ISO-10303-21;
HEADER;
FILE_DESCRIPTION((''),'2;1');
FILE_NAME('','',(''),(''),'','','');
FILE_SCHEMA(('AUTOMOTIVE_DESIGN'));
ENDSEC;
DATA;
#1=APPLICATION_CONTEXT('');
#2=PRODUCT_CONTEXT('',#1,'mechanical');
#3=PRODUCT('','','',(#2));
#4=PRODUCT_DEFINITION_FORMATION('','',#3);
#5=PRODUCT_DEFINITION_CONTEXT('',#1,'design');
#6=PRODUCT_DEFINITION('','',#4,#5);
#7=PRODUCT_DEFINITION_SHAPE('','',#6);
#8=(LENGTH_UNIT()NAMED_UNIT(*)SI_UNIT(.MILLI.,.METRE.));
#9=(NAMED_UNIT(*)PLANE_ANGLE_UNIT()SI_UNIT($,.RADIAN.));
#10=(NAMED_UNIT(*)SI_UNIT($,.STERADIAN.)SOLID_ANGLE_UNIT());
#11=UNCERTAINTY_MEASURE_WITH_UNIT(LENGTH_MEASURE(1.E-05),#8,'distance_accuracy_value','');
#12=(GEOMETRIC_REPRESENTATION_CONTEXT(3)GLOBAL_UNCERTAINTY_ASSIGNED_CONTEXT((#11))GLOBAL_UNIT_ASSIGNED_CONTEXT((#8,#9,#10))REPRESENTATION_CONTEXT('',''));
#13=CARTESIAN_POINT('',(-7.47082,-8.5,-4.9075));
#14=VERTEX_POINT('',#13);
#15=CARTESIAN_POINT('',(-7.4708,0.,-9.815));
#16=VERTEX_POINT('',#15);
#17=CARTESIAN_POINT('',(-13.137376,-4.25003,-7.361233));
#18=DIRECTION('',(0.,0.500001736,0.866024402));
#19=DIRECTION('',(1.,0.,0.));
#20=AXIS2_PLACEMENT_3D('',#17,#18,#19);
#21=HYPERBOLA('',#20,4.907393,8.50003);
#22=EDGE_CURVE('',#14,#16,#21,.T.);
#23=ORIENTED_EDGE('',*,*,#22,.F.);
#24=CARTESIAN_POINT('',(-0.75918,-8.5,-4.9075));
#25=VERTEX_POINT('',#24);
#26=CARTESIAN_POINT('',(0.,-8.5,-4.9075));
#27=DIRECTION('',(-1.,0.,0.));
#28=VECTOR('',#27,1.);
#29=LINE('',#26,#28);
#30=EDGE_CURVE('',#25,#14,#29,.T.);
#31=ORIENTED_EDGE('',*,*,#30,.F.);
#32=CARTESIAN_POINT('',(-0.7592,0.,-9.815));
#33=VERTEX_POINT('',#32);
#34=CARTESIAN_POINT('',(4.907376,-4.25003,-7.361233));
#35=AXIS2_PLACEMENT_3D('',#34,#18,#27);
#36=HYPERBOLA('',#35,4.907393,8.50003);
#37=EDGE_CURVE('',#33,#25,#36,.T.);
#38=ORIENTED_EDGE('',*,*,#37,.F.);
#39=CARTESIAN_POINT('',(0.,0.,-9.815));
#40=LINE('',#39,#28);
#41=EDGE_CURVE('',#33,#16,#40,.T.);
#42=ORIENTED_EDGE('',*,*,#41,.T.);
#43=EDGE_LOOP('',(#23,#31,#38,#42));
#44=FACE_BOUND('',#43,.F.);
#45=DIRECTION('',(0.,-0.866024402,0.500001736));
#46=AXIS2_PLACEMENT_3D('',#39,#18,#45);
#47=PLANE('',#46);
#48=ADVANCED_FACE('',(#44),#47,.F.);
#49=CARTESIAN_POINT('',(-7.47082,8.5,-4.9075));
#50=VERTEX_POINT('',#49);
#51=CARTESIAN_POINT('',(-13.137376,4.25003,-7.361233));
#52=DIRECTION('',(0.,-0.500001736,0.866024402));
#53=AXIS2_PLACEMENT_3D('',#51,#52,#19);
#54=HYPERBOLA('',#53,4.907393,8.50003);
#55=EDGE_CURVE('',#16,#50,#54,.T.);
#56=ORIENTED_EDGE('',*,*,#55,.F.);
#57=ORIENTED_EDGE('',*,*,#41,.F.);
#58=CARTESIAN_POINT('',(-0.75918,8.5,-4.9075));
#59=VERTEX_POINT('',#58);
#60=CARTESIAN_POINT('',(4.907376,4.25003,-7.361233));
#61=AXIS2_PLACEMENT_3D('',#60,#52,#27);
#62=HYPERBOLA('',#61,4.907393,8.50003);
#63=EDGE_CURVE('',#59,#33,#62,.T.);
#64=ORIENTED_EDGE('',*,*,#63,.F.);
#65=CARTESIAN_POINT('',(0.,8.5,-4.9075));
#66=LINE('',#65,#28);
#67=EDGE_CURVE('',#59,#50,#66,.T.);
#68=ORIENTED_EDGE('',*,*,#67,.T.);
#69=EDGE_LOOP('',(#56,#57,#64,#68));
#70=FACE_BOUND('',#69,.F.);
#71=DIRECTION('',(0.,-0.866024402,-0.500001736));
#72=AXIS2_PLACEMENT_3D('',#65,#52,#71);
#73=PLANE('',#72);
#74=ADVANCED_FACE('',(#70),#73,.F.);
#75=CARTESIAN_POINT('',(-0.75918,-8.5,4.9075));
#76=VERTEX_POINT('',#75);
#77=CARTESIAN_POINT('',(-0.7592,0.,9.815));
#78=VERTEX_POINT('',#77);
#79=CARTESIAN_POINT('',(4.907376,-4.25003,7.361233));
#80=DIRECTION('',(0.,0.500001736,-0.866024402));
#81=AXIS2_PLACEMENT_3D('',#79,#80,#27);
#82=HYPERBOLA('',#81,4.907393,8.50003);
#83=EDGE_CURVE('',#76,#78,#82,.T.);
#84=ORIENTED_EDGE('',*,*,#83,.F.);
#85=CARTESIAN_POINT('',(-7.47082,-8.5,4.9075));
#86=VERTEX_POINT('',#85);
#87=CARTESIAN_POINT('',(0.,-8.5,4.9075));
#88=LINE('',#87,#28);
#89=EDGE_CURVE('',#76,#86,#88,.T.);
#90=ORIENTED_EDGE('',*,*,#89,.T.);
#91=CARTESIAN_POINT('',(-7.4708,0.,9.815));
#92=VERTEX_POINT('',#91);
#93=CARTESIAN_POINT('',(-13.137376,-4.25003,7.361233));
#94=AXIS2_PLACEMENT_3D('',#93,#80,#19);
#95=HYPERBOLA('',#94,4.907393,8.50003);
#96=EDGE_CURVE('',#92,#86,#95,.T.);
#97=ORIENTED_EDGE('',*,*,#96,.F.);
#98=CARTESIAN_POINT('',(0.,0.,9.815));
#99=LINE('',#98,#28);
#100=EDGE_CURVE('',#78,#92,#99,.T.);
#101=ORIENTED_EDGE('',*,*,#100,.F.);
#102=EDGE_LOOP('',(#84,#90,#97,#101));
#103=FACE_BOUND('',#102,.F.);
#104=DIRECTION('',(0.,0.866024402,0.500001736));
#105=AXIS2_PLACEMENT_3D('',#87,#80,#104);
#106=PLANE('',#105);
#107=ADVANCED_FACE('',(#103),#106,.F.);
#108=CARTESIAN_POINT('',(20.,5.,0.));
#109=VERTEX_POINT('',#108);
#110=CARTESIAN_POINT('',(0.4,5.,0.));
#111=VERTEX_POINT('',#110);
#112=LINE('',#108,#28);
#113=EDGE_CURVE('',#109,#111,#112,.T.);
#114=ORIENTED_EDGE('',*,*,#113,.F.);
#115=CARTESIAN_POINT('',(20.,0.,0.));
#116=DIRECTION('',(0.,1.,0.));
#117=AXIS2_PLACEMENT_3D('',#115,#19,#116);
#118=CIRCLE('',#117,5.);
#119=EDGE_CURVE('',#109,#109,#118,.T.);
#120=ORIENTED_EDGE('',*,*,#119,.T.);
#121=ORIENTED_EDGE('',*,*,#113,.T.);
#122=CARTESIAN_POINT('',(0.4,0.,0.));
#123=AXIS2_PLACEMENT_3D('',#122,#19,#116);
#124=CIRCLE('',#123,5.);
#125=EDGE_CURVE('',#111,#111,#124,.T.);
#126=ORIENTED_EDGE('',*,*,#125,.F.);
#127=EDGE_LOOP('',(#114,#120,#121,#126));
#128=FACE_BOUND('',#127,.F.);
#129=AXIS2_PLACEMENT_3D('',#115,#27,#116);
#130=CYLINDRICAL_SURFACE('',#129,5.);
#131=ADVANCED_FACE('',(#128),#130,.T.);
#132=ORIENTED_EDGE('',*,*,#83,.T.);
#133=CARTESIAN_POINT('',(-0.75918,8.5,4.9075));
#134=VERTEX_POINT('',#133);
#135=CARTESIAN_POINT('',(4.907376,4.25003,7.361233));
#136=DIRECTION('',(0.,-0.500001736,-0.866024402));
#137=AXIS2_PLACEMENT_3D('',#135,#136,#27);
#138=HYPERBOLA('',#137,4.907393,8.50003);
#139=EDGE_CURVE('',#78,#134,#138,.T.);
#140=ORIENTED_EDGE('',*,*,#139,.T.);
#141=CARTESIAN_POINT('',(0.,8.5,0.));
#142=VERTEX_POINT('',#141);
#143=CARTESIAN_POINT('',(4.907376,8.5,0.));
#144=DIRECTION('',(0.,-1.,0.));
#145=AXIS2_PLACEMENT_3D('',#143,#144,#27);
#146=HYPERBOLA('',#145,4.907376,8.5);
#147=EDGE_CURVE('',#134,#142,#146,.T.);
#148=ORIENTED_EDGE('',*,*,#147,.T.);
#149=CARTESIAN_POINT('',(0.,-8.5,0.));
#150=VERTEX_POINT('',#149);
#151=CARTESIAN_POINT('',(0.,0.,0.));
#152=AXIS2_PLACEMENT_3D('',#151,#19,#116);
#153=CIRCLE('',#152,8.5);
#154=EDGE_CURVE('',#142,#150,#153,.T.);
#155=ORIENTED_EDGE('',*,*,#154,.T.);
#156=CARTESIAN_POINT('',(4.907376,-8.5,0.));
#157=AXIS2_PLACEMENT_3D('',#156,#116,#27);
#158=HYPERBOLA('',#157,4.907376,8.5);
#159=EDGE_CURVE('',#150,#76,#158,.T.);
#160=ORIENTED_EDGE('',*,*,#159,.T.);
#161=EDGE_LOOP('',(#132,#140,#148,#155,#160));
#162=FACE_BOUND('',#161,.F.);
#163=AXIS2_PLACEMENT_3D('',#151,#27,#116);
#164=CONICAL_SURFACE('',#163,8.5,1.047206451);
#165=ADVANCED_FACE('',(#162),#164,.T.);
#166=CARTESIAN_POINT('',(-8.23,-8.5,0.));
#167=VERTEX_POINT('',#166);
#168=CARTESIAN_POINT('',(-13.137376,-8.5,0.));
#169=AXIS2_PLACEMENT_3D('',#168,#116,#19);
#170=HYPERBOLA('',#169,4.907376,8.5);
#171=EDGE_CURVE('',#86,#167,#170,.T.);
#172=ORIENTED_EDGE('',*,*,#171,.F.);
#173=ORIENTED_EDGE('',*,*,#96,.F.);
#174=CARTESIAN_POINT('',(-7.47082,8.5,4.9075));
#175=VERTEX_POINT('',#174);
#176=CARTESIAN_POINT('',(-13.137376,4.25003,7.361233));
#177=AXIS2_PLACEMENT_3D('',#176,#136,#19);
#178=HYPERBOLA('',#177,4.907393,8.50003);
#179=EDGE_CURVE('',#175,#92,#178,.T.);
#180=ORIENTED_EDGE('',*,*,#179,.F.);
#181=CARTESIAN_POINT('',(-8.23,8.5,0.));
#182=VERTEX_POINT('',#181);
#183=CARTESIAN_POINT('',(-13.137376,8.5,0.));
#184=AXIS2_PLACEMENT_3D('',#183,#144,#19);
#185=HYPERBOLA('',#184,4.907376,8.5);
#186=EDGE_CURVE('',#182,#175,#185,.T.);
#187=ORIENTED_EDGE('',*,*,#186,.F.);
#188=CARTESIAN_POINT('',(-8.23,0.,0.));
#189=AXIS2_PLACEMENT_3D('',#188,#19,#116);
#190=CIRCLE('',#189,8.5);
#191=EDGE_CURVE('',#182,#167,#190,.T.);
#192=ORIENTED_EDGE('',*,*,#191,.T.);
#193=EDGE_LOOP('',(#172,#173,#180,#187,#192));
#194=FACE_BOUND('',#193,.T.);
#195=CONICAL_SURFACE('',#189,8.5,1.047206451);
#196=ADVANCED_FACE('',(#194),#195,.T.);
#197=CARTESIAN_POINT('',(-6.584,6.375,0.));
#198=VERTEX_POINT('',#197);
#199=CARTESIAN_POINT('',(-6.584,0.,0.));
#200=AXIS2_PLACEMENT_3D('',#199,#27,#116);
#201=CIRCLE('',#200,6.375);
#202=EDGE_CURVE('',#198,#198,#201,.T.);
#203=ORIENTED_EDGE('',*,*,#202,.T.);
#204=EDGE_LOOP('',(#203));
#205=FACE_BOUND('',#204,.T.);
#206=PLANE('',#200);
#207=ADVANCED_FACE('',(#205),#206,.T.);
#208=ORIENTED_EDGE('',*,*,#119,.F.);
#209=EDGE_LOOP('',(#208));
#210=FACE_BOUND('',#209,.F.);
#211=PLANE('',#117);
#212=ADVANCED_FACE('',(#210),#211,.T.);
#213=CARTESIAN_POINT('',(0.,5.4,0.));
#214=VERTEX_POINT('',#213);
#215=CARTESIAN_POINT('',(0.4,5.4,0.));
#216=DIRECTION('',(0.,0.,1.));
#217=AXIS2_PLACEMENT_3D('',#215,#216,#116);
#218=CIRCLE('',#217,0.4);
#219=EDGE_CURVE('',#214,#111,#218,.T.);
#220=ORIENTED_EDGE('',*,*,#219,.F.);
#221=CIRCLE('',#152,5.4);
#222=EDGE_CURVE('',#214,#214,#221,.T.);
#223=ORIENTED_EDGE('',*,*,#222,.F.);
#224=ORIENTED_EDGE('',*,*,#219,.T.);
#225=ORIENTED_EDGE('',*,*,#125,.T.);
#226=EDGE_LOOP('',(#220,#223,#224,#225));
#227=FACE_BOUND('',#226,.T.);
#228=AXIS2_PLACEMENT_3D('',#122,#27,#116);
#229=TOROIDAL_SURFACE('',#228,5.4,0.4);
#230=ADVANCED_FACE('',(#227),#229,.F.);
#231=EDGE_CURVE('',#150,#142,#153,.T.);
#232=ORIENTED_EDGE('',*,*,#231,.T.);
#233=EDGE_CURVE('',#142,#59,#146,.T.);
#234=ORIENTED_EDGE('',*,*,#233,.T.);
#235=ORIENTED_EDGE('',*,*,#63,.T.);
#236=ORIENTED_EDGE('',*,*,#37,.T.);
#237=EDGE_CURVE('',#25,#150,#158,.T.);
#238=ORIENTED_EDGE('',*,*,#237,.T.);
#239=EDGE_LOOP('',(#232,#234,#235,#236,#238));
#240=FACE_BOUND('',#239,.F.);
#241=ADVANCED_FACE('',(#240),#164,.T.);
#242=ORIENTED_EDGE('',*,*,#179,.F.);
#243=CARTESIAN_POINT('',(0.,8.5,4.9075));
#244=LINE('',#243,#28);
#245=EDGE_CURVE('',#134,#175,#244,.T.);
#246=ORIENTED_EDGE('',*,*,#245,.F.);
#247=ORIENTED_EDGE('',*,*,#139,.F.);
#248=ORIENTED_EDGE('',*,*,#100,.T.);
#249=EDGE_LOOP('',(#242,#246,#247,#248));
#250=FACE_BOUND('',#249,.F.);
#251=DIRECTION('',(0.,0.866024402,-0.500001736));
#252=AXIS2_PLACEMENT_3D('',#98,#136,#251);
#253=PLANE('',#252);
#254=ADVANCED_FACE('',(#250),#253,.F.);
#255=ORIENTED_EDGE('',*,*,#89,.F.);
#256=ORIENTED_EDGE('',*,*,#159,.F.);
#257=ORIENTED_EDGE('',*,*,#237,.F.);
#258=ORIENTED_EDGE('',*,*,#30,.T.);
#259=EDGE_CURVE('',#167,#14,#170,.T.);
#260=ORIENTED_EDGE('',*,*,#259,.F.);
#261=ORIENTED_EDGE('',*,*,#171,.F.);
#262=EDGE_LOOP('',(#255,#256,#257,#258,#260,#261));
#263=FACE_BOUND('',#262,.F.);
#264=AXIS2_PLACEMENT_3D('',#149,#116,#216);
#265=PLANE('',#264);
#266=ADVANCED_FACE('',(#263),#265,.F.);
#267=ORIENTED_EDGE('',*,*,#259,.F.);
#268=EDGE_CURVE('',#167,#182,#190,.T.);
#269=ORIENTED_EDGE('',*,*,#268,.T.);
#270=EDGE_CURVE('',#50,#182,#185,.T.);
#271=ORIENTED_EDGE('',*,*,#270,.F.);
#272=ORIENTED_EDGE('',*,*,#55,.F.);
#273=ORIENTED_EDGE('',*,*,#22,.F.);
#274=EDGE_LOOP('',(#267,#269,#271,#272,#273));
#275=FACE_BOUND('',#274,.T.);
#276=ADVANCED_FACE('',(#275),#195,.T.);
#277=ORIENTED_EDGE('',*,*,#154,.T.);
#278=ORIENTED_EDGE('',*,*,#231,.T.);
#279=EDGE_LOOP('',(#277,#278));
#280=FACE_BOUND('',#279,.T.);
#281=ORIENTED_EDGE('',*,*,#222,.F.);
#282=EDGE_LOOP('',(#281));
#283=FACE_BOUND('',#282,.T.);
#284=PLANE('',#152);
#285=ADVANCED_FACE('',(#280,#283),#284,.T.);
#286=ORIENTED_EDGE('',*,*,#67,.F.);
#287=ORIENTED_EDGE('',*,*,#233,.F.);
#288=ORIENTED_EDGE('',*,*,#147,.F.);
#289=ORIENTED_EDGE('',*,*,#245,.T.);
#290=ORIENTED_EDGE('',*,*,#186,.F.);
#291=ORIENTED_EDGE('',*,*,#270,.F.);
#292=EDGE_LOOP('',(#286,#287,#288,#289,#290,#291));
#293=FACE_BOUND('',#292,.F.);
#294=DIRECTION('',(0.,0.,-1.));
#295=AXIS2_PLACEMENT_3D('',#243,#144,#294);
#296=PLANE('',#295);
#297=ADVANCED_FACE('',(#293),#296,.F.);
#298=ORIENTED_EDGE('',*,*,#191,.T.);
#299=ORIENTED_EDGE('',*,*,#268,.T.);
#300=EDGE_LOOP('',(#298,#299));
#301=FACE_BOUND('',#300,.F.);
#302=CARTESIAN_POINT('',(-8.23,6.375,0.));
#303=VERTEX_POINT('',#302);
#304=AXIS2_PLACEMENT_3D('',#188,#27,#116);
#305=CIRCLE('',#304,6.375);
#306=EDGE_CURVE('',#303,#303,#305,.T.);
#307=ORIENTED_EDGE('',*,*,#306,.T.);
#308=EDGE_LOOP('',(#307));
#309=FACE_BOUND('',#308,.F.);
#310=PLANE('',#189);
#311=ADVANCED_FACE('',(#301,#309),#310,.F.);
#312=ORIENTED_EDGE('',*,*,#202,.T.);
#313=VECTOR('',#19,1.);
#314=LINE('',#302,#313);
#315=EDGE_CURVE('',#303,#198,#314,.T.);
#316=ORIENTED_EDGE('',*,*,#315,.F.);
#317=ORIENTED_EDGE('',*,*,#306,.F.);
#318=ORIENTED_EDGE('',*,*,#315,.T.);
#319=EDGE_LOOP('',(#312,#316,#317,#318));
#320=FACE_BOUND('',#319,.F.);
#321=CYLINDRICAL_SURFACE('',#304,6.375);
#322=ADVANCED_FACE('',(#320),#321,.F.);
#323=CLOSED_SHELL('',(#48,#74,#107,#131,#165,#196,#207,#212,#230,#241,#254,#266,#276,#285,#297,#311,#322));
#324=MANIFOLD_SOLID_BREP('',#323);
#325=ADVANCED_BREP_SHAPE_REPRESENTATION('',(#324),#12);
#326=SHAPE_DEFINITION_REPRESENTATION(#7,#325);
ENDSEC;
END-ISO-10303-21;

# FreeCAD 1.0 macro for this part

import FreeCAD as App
import Part
import Sketcher
from FreeCAD import Vector
Q = App.Units.Quantity


def edges_at(feature, points):
    """Names of the edges that pass closest to the given points."""
    edges = feature.Shape.Edges
    near = lambda p: min(range(len(edges)), key=lambda i: edges[i].distToShape(Part.Vertex(*p))[0])
    return sorted({f"Edge{near(p) + 1}" for p in points})

doc = App.newDocument("Part")
params = doc.addObject("Spreadsheet::Sheet", "Params")
for row, (alias, value) in enumerate([
    ("sketch1_width", "20 mm"),
    ("sketch1_height", "5 mm"),
    ("revolution_angle", "360 deg"),
    ("pad1_length", "8.23 mm"),
    ("sketch3_diameter", "12.75 mm"),
    ("pocket1_length", "1.646 mm"),
    ("groove_angle", "360 deg"),
    ("fillet_radius", "0.4 mm"),
], start=1):
    params.set(f"A{row}", alias)
    params.set(f"B{row}", "=" + value)
    params.setAlias(f"B{row}", alias)

body = doc.addObject("PartDesign::Body", "Body")

# Sketch on XY plane
sketch1 = body.newObject("Sketcher::SketchObject", "Sketch")
sketch1.AttachmentSupport = (doc.getObject("XY_Plane"), [""])
sketch1.MapMode = "FlatFace"
sketch1.addGeometry([
    Part.LineSegment(Vector(20, 5, 0), Vector(0, 5, 0)),
    Part.LineSegment(Vector(0, 5, 0), Vector(0, 0, 0)),
    Part.LineSegment(Vector(0, 0, 0), Vector(20, 0, 0)),
    Part.LineSegment(Vector(20, 0, 0), Vector(20, 5, 0)),
], False)
sketch1.addConstraint([
    Sketcher.Constraint("Coincident", 0, 2, 1, 1),
    Sketcher.Constraint("Coincident", 1, 2, 2, 1),
    Sketcher.Constraint("Coincident", 2, 2, 3, 1),
    Sketcher.Constraint("Coincident", 3, 2, 0, 1),
    Sketcher.Constraint("Horizontal", 0),
    Sketcher.Constraint("Vertical", 1),
    Sketcher.Constraint("Horizontal", 2),
    Sketcher.Constraint("Vertical", 3),
    Sketcher.Constraint("Coincident", 1, 2, -1, 1),
    Sketcher.Constraint("DistanceX", 0, 2, 0, 1, Q("20 mm")),
    Sketcher.Constraint("DistanceY", 1, 2, 1, 1, Q("5 mm")),
])
sketch1.setExpression("Constraints[9]", "Params.sketch1_width")
sketch1.setExpression("Constraints[10]", "Params.sketch1_height")
revolution = body.newObject("PartDesign::Revolution", "Revolution")
revolution.Profile = sketch1
revolution.ReferenceAxis = (sketch1, ["H_Axis"])
revolution.setExpression("Angle", "Params.revolution_angle")

# Sketch on YZ plane
sketch2 = body.newObject("Sketcher::SketchObject", "Sketch001")
sketch2.AttachmentSupport = (doc.getObject("YZ_Plane"), [""])
sketch2.MapMode = "FlatFace"
sketch2.addGeometry([
    Part.LineSegment(Vector(-8, 5, 0), Vector(-8, -5, 0)),  # 0
    Part.LineSegment(Vector(-8, -5, 0), Vector(0, -10, 0)),  # 1
    Part.LineSegment(Vector(0, -10, 0), Vector(8, -5, 0)),  # 2
    Part.LineSegment(Vector(8, -5, 0), Vector(8, 5, 0)),  # 3
    Part.LineSegment(Vector(8, 5, 0), Vector(0, 10, 0)),  # 4
    Part.LineSegment(Vector(0, 10, 0), Vector(-8, 5, 0)),  # 5
], False)
sketch2.addConstraint([
    Sketcher.Constraint("Coincident", 0, 2, 1, 1),
    Sketcher.Constraint("Coincident", 1, 2, 2, 1),
    Sketcher.Constraint("Coincident", 2, 2, 3, 1),
    Sketcher.Constraint("Coincident", 3, 2, 4, 1),
    Sketcher.Constraint("Coincident", 4, 2, 5, 1),
    Sketcher.Constraint("Coincident", 5, 2, 0, 1),
    Sketcher.Constraint("Vertical", 0),
    Sketcher.Constraint("Vertical", 3),
    Sketcher.Constraint("Symmetric", 0, 2, 3, 2, -1, 1),
    Sketcher.Constraint("Symmetric", 1, 2, 4, 2, -1, 1),
    Sketcher.Constraint("PointOnObject", 1, 2, -2),
    Sketcher.Constraint("Parallel", 2, 5),
    Sketcher.Constraint("Horizontal", 0, 2, 2, 2),
    Sketcher.Constraint("DistanceX", 0, 2, 2, 2, Q("17 mm")),
    Sketcher.Constraint("Angle", 1, Q("-30 deg")),
    Sketcher.Constraint("DistanceY", 0, 2, 0, 1, Q("9.815 mm")),
])
pad1 = body.newObject("PartDesign::Pad", "Pad")
pad1.Profile = sketch2
pad1.setExpression("Length", "Params.pad1_length")
pad1.Reversed = True

# Sketch on YZ plane
sketch3 = body.newObject("Sketcher::SketchObject", "Sketch002")
sketch3.AttachmentSupport = (doc.getObject("YZ_Plane"), [""])
sketch3.MapMode = "FlatFace"
sketch3.AttachmentOffset = App.Placement(Vector(0, 0, -8.23), App.Rotation())
sketch3.addGeometry(Part.Circle(Vector(0, 0, 0), Vector(0, 0, 1), 6), False)
sketch3.addConstraint([
    Sketcher.Constraint("Coincident", 0, 3, -1, 1),
    Sketcher.Constraint("Diameter", 0, Q("12.75 mm")),
])
sketch3.setExpression("Constraints[1]", "Params.sketch3_diameter")
pocket1 = body.newObject("PartDesign::Pocket", "Pocket")
pocket1.Profile = sketch3
pocket1.setExpression("Length", "Params.pocket1_length")
pocket1.Reversed = True

# Sketch on XY plane
sketch4 = body.newObject("Sketcher::SketchObject", "Sketch003")
sketch4.AttachmentSupport = (doc.getObject("XY_Plane"), [""])
sketch4.MapMode = "FlatFace"
sketch4.addGeometry([
    Part.LineSegment(Vector(-7.5, 9.8, 0), Vector(-8.2, 9.8, 0)),  # 0
    Part.LineSegment(Vector(-8.2, 9.8, 0), Vector(-8.2, 8.5, 0)),  # 1
    Part.LineSegment(Vector(-8.2, 8.5, 0), Vector(-7.5, 9.8, 0)),  # 2
    Part.LineSegment(Vector(-0.8, 9.8, 0), Vector(0, 8.5, 0)),  # 3
    Part.LineSegment(Vector(0, 8.5, 0), Vector(0, 9.8, 0)),  # 4
    Part.LineSegment(Vector(0, 9.8, 0), Vector(-0.8, 9.8, 0)),  # 5
], False)
sketch4.addConstraint([
    Sketcher.Constraint("Coincident", 0, 2, 1, 1),
    Sketcher.Constraint("Coincident", 1, 2, 2, 1),
    Sketcher.Constraint("Coincident", 2, 2, 0, 1),
    Sketcher.Constraint("Coincident", 3, 2, 4, 1),
    Sketcher.Constraint("Coincident", 4, 2, 5, 1),
    Sketcher.Constraint("Coincident", 5, 2, 3, 1),
    Sketcher.Constraint("Horizontal", 0),
    Sketcher.Constraint("Vertical", 1),
    Sketcher.Constraint("Vertical", 4),
    Sketcher.Constraint("Horizontal", 5),
    Sketcher.Constraint("PointOnObject", 3, 2, -2),
    Sketcher.Constraint("Horizontal", 1, 2, 3, 2),
    Sketcher.Constraint("Horizontal", 2, 2, 4, 2),
    Sketcher.Constraint("Equal", 0, 5),
    Sketcher.Constraint("Angle", 2, Q("60.0005 deg")),
    Sketcher.Constraint("DistanceY", -1, 1, 1, 2, Q("8.5 mm")),
    Sketcher.Constraint("DistanceY", 1, 2, 1, 1, Q("1.315 mm")),
    Sketcher.Constraint("DistanceX", 0, 2, -1, 1, Q("8.23 mm")),
])
groove = body.newObject("PartDesign::Groove", "Groove")
groove.Profile = sketch4
groove.ReferenceAxis = (sketch4, ["H_Axis"])
groove.setExpression("Angle", "Params.groove_angle")
doc.recompute()

fillet = body.newObject("PartDesign::Fillet", "Fillet")
fillet.Base = (groove, edges_at(groove, [(0, -5, 0)]))
fillet.setExpression("Radius", "Params.fillet_radius")

doc.recompute()
